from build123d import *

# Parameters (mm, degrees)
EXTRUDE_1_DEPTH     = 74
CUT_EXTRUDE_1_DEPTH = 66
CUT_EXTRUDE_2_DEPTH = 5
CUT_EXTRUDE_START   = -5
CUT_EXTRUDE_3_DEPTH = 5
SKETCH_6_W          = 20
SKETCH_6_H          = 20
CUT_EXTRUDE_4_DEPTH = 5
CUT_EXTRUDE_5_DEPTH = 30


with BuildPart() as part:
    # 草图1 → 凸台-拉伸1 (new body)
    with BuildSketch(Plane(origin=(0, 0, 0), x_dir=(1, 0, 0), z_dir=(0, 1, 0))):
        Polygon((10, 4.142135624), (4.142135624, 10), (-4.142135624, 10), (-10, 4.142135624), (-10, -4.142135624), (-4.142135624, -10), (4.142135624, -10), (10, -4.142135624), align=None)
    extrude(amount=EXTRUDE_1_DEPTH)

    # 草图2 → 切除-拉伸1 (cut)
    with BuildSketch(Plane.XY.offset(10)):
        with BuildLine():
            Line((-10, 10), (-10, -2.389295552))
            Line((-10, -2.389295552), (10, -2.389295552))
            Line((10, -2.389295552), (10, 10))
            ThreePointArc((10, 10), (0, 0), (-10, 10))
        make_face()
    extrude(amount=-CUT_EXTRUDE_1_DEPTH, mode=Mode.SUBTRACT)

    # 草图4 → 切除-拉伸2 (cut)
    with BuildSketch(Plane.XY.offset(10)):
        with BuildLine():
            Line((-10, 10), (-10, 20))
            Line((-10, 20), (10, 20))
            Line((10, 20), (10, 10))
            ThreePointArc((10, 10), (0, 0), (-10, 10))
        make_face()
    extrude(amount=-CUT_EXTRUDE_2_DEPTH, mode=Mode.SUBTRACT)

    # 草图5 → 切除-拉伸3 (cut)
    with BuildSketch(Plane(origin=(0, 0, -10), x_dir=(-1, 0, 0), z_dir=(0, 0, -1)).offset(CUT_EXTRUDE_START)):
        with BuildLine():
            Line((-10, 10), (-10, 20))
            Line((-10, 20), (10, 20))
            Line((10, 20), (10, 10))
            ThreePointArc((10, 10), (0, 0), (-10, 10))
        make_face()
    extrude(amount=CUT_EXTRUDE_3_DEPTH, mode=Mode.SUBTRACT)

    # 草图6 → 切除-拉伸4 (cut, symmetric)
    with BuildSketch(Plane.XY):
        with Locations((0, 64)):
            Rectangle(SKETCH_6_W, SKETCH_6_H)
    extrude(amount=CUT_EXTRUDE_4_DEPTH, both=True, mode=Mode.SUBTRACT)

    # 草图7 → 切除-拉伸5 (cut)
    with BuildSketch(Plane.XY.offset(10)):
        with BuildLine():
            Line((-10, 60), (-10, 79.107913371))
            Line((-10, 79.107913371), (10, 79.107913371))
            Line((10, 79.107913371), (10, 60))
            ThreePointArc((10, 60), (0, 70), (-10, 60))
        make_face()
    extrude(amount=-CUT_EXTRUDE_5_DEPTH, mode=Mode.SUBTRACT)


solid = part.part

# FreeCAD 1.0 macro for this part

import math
import FreeCAD as App
import Part
import Sketcher


def add_polygon(sketch, points):
    """Adds a closed chain of lines whose ends are joined by coincident constraints."""
    first, n = sketch.GeometryCount, len(points)
    for a, b in zip(points, points[1:] + points[:1]):
        sketch.addGeometry(Part.LineSegment(App.Vector(*a, 0), App.Vector(*b, 0)), False)
    for i in range(n):
        sketch.addConstraint(Sketcher.Constraint("Coincident", first + i, 2, first + (i + 1) % n, 1))

doc = App.newDocument("Part")
body = doc.addObject("PartDesign::Body", "Body")

# Sketch on XZ plane
sketch1 = doc.addObject("Sketcher::SketchObject", "Sketch")
body.addObject(sketch1)
sketch1.AttachmentSupport = (doc.XZ_Plane, [""])
sketch1.MapMode = "FlatFace"
add_polygon(sketch1, [(10, -4), (4, -10), (-4, -10), (-10, -4), (-10, 4), (-4, 10), (4, 10), (10, 4)])  # lines 0-7
sketch1.addConstraint([
    Sketcher.Constraint("Horizontal", 1),
    Sketcher.Constraint("Vertical", 3),
    Sketcher.Constraint("Horizontal", 5),
    Sketcher.Constraint("Vertical", 7),
    Sketcher.Constraint("Symmetric", 0, 2, 4, 2, -1, 1),
    Sketcher.Constraint("Symmetric", 2, 2, 6, 2, -1, 1),
    Sketcher.Constraint("Perpendicular", 0, 2),
    Sketcher.Constraint("Perpendicular", 2, 4),
    Sketcher.Constraint("Perpendicular", 4, 6),
    Sketcher.Constraint("Horizontal", 3, 2, 6, 2),
    Sketcher.Constraint("Vertical", 1, 2, 4, 2),
    Sketcher.Constraint("Equal", 5, 3),
    Sketcher.Constraint("DistanceY", 0, 2, -1, 1, 10.0),
    Sketcher.Constraint("DistanceX", 1, 2, 1, 1, 8.284271),
])
pad1 = doc.addObject("PartDesign::Pad", "Pad")
body.addObject(pad1)
pad1.Profile = sketch1
pad1.Length = 74
pad1.Reversed = True

# Sketch on XY plane
sketch2 = doc.addObject("Sketcher::SketchObject", "Sketch001")
body.addObject(sketch2)
sketch2.AttachmentSupport = (doc.XY_Plane, [""])
sketch2.MapMode = "FlatFace"
sketch2.AttachmentOffset = App.Placement(App.Vector(0, 0, 10), App.Rotation())
sketch2.addGeometry([
    Part.LineSegment(App.Vector(-10, 10, 0), App.Vector(-10, -2, 0)),
    Part.LineSegment(App.Vector(-10, -2, 0), App.Vector(10, -2, 0)),
    Part.LineSegment(App.Vector(10, -2, 0), App.Vector(10, 10, 0)),
    Part.ArcOfCircle(Part.Circle(App.Vector(0, 10, 0), App.Vector(0, 0, 1), 10), math.radians(180), math.radians(360)),
], False)
sketch2.addConstraint([
    Sketcher.Constraint("Coincident", 0, 2, 1, 1),
    Sketcher.Constraint("Coincident", 1, 2, 2, 1),
    Sketcher.Constraint("Tangent", 2, 2, 3, 2),
    Sketcher.Constraint("Tangent", 3, 1, 0, 1),
    Sketcher.Constraint("Vertical", 0),
    Sketcher.Constraint("Horizontal", 1),
    Sketcher.Constraint("Vertical", 2),
    Sketcher.Constraint("PointOnObject", 3, 3, -2),
    Sketcher.Constraint("Radius", 3, 10.0),
    Sketcher.Constraint("DistanceY", -1, 1, 3, 3, 10.0),
    Sketcher.Constraint("DistanceY", 0, 2, 0, 1, 12.389296),
])
pocket1 = doc.addObject("PartDesign::Pocket", "Pocket")
body.addObject(pocket1)
pocket1.Profile = sketch2
pocket1.Length = 66

# Sketch on XY plane
sketch3 = doc.addObject("Sketcher::SketchObject", "Sketch002")
body.addObject(sketch3)
sketch3.AttachmentSupport = (doc.XY_Plane, [""])
sketch3.MapMode = "FlatFace"
sketch3.AttachmentOffset = App.Placement(App.Vector(0, 0, 10), App.Rotation())
sketch3.addGeometry([
    Part.LineSegment(App.Vector(-10, 20, 0), App.Vector(-10, 10, 0)),
    Part.ArcOfCircle(Part.Circle(App.Vector(0, 10, 0), App.Vector(0, 0, 1), 10), math.radians(180), math.radians(360)),
    Part.LineSegment(App.Vector(10, 10, 0), App.Vector(10, 20, 0)),
    Part.LineSegment(App.Vector(10, 20, 0), App.Vector(-10, 20, 0)),
], False)
sketch3.addConstraint([
    Sketcher.Constraint("Tangent", 0, 2, 1, 1),
    Sketcher.Constraint("Tangent", 1, 2, 2, 1),
    Sketcher.Constraint("Coincident", 2, 2, 3, 1),
    Sketcher.Constraint("Coincident", 3, 2, 0, 1),
    Sketcher.Constraint("Vertical", 0),
    Sketcher.Constraint("Vertical", 2),
    Sketcher.Constraint("Horizontal", 3),
    Sketcher.Constraint("PointOnObject", 1, 3, -2),
    Sketcher.Constraint("Radius", 1, 10.0),
    Sketcher.Constraint("DistanceY", 0, 2, 0, 1, 10.0),
    Sketcher.Constraint("DistanceY", -1, 1, 1, 3, 10.0),
])
pocket2 = doc.addObject("PartDesign::Pocket", "Pocket001")
body.addObject(pocket2)
pocket2.Profile = sketch3
pocket2.Length = 5

# Sketch on XY plane
sketch4 = doc.addObject("Sketcher::SketchObject", "Sketch003")
body.addObject(sketch4)
sketch4.AttachmentSupport = (doc.XY_Plane, [""])
sketch4.MapMode = "FlatFace"
sketch4.AttachmentOffset = App.Placement(App.Vector(0, 0, -5), App.Rotation())
sketch4.addGeometry([
    Part.LineSegment(App.Vector(10, 20, 0), App.Vector(10, 10, 0)),
    Part.ArcOfCircle(Part.Circle(App.Vector(0, 10, 0), App.Vector(0, 0, 1), 10), math.radians(180), math.radians(360)),
    Part.LineSegment(App.Vector(-10, 10, 0), App.Vector(-10, 20, 0)),
    Part.LineSegment(App.Vector(-10, 20, 0), App.Vector(10, 20, 0)),
], False)
sketch4.addConstraint([
    Sketcher.Constraint("Tangent", 0, 2, 1, 2),
    Sketcher.Constraint("Tangent", 1, 1, 2, 1),
    Sketcher.Constraint("Coincident", 2, 2, 3, 1),
    Sketcher.Constraint("Coincident", 3, 2, 0, 1),
    Sketcher.Constraint("Vertical", 0),
    Sketcher.Constraint("Vertical", 2),
    Sketcher.Constraint("Horizontal", 3),
    Sketcher.Constraint("PointOnObject", 1, 3, -2),
    Sketcher.Constraint("Radius", 1, 10.0),
    Sketcher.Constraint("DistanceY", 0, 2, 0, 1, 10.0),
    Sketcher.Constraint("DistanceY", -1, 1, 1, 3, 10.0),
])
pocket3 = doc.addObject("PartDesign::Pocket", "Pocket002")
body.addObject(pocket3)
pocket3.Profile = sketch4
pocket3.Length = 5

# Sketch on XY plane
sketch5 = doc.addObject("Sketcher::SketchObject", "Sketch004")
body.addObject(sketch5)
sketch5.AttachmentSupport = (doc.XY_Plane, [""])
sketch5.MapMode = "FlatFace"
add_polygon(sketch5, [(-10, 74), (-10, 54), (10, 54), (10, 74)])  # lines 0-3
sketch5.addConstraint([
    Sketcher.Constraint("Vertical", 0),
    Sketcher.Constraint("Horizontal", 1),
    Sketcher.Constraint("Vertical", 2),
    Sketcher.Constraint("Horizontal", 3),
    Sketcher.Constraint("Equal", 3, 0),
    Sketcher.Constraint("DistanceX", 1, 1, 1, 2, 20.0),
    Sketcher.Constraint("DistanceX", 0, 2, -1, 1, 10.0),
    Sketcher.Constraint("DistanceY", -1, 1, 0, 2, 54.0),
])
pocket4 = doc.addObject("PartDesign::Pocket", "Pocket003")
body.addObject(pocket4)
pocket4.Profile = sketch5
pocket4.Length = 10
pocket4.Midplane = True

# Sketch on XY plane
sketch6 = doc.addObject("Sketcher::SketchObject", "Sketch005")
body.addObject(sketch6)
sketch6.AttachmentSupport = (doc.XY_Plane, [""])
sketch6.MapMode = "FlatFace"
sketch6.AttachmentOffset = App.Placement(App.Vector(0, 0, 10), App.Rotation())
sketch6.addGeometry([
    Part.LineSegment(App.Vector(-10, 79, 0), App.Vector(-10, 60, 0)),
    Part.ArcOfCircle(Part.Circle(App.Vector(0, 60, 0), App.Vector(0, 0, 1), 10), math.radians(0), math.radians(180)),
    Part.LineSegment(App.Vector(10, 60, 0), App.Vector(10, 79, 0)),
    Part.LineSegment(App.Vector(10, 79, 0), App.Vector(-10, 79, 0)),
], False)
sketch6.addConstraint([
    Sketcher.Constraint("Tangent", 0, 2, 1, 2),
    Sketcher.Constraint("Tangent", 1, 1, 2, 1),
    Sketcher.Constraint("Coincident", 2, 2, 3, 1),
    Sketcher.Constraint("Coincident", 3, 2, 0, 1),
    Sketcher.Constraint("Vertical", 0),
    Sketcher.Constraint("Vertical", 2),
    Sketcher.Constraint("Horizontal", 3),
    Sketcher.Constraint("PointOnObject", 1, 3, -2),
    Sketcher.Constraint("Radius", 1, 10.0),
    Sketcher.Constraint("DistanceY", -1, 1, 1, 3, 60.0),
    Sketcher.Constraint("DistanceY", 0, 2, 0, 1, 19.107913),
])
pocket5 = doc.addObject("PartDesign::Pocket", "Pocket004")
body.addObject(pocket5)
pocket5.Profile = sketch6
pocket5.Length = 30

doc.recompute()
